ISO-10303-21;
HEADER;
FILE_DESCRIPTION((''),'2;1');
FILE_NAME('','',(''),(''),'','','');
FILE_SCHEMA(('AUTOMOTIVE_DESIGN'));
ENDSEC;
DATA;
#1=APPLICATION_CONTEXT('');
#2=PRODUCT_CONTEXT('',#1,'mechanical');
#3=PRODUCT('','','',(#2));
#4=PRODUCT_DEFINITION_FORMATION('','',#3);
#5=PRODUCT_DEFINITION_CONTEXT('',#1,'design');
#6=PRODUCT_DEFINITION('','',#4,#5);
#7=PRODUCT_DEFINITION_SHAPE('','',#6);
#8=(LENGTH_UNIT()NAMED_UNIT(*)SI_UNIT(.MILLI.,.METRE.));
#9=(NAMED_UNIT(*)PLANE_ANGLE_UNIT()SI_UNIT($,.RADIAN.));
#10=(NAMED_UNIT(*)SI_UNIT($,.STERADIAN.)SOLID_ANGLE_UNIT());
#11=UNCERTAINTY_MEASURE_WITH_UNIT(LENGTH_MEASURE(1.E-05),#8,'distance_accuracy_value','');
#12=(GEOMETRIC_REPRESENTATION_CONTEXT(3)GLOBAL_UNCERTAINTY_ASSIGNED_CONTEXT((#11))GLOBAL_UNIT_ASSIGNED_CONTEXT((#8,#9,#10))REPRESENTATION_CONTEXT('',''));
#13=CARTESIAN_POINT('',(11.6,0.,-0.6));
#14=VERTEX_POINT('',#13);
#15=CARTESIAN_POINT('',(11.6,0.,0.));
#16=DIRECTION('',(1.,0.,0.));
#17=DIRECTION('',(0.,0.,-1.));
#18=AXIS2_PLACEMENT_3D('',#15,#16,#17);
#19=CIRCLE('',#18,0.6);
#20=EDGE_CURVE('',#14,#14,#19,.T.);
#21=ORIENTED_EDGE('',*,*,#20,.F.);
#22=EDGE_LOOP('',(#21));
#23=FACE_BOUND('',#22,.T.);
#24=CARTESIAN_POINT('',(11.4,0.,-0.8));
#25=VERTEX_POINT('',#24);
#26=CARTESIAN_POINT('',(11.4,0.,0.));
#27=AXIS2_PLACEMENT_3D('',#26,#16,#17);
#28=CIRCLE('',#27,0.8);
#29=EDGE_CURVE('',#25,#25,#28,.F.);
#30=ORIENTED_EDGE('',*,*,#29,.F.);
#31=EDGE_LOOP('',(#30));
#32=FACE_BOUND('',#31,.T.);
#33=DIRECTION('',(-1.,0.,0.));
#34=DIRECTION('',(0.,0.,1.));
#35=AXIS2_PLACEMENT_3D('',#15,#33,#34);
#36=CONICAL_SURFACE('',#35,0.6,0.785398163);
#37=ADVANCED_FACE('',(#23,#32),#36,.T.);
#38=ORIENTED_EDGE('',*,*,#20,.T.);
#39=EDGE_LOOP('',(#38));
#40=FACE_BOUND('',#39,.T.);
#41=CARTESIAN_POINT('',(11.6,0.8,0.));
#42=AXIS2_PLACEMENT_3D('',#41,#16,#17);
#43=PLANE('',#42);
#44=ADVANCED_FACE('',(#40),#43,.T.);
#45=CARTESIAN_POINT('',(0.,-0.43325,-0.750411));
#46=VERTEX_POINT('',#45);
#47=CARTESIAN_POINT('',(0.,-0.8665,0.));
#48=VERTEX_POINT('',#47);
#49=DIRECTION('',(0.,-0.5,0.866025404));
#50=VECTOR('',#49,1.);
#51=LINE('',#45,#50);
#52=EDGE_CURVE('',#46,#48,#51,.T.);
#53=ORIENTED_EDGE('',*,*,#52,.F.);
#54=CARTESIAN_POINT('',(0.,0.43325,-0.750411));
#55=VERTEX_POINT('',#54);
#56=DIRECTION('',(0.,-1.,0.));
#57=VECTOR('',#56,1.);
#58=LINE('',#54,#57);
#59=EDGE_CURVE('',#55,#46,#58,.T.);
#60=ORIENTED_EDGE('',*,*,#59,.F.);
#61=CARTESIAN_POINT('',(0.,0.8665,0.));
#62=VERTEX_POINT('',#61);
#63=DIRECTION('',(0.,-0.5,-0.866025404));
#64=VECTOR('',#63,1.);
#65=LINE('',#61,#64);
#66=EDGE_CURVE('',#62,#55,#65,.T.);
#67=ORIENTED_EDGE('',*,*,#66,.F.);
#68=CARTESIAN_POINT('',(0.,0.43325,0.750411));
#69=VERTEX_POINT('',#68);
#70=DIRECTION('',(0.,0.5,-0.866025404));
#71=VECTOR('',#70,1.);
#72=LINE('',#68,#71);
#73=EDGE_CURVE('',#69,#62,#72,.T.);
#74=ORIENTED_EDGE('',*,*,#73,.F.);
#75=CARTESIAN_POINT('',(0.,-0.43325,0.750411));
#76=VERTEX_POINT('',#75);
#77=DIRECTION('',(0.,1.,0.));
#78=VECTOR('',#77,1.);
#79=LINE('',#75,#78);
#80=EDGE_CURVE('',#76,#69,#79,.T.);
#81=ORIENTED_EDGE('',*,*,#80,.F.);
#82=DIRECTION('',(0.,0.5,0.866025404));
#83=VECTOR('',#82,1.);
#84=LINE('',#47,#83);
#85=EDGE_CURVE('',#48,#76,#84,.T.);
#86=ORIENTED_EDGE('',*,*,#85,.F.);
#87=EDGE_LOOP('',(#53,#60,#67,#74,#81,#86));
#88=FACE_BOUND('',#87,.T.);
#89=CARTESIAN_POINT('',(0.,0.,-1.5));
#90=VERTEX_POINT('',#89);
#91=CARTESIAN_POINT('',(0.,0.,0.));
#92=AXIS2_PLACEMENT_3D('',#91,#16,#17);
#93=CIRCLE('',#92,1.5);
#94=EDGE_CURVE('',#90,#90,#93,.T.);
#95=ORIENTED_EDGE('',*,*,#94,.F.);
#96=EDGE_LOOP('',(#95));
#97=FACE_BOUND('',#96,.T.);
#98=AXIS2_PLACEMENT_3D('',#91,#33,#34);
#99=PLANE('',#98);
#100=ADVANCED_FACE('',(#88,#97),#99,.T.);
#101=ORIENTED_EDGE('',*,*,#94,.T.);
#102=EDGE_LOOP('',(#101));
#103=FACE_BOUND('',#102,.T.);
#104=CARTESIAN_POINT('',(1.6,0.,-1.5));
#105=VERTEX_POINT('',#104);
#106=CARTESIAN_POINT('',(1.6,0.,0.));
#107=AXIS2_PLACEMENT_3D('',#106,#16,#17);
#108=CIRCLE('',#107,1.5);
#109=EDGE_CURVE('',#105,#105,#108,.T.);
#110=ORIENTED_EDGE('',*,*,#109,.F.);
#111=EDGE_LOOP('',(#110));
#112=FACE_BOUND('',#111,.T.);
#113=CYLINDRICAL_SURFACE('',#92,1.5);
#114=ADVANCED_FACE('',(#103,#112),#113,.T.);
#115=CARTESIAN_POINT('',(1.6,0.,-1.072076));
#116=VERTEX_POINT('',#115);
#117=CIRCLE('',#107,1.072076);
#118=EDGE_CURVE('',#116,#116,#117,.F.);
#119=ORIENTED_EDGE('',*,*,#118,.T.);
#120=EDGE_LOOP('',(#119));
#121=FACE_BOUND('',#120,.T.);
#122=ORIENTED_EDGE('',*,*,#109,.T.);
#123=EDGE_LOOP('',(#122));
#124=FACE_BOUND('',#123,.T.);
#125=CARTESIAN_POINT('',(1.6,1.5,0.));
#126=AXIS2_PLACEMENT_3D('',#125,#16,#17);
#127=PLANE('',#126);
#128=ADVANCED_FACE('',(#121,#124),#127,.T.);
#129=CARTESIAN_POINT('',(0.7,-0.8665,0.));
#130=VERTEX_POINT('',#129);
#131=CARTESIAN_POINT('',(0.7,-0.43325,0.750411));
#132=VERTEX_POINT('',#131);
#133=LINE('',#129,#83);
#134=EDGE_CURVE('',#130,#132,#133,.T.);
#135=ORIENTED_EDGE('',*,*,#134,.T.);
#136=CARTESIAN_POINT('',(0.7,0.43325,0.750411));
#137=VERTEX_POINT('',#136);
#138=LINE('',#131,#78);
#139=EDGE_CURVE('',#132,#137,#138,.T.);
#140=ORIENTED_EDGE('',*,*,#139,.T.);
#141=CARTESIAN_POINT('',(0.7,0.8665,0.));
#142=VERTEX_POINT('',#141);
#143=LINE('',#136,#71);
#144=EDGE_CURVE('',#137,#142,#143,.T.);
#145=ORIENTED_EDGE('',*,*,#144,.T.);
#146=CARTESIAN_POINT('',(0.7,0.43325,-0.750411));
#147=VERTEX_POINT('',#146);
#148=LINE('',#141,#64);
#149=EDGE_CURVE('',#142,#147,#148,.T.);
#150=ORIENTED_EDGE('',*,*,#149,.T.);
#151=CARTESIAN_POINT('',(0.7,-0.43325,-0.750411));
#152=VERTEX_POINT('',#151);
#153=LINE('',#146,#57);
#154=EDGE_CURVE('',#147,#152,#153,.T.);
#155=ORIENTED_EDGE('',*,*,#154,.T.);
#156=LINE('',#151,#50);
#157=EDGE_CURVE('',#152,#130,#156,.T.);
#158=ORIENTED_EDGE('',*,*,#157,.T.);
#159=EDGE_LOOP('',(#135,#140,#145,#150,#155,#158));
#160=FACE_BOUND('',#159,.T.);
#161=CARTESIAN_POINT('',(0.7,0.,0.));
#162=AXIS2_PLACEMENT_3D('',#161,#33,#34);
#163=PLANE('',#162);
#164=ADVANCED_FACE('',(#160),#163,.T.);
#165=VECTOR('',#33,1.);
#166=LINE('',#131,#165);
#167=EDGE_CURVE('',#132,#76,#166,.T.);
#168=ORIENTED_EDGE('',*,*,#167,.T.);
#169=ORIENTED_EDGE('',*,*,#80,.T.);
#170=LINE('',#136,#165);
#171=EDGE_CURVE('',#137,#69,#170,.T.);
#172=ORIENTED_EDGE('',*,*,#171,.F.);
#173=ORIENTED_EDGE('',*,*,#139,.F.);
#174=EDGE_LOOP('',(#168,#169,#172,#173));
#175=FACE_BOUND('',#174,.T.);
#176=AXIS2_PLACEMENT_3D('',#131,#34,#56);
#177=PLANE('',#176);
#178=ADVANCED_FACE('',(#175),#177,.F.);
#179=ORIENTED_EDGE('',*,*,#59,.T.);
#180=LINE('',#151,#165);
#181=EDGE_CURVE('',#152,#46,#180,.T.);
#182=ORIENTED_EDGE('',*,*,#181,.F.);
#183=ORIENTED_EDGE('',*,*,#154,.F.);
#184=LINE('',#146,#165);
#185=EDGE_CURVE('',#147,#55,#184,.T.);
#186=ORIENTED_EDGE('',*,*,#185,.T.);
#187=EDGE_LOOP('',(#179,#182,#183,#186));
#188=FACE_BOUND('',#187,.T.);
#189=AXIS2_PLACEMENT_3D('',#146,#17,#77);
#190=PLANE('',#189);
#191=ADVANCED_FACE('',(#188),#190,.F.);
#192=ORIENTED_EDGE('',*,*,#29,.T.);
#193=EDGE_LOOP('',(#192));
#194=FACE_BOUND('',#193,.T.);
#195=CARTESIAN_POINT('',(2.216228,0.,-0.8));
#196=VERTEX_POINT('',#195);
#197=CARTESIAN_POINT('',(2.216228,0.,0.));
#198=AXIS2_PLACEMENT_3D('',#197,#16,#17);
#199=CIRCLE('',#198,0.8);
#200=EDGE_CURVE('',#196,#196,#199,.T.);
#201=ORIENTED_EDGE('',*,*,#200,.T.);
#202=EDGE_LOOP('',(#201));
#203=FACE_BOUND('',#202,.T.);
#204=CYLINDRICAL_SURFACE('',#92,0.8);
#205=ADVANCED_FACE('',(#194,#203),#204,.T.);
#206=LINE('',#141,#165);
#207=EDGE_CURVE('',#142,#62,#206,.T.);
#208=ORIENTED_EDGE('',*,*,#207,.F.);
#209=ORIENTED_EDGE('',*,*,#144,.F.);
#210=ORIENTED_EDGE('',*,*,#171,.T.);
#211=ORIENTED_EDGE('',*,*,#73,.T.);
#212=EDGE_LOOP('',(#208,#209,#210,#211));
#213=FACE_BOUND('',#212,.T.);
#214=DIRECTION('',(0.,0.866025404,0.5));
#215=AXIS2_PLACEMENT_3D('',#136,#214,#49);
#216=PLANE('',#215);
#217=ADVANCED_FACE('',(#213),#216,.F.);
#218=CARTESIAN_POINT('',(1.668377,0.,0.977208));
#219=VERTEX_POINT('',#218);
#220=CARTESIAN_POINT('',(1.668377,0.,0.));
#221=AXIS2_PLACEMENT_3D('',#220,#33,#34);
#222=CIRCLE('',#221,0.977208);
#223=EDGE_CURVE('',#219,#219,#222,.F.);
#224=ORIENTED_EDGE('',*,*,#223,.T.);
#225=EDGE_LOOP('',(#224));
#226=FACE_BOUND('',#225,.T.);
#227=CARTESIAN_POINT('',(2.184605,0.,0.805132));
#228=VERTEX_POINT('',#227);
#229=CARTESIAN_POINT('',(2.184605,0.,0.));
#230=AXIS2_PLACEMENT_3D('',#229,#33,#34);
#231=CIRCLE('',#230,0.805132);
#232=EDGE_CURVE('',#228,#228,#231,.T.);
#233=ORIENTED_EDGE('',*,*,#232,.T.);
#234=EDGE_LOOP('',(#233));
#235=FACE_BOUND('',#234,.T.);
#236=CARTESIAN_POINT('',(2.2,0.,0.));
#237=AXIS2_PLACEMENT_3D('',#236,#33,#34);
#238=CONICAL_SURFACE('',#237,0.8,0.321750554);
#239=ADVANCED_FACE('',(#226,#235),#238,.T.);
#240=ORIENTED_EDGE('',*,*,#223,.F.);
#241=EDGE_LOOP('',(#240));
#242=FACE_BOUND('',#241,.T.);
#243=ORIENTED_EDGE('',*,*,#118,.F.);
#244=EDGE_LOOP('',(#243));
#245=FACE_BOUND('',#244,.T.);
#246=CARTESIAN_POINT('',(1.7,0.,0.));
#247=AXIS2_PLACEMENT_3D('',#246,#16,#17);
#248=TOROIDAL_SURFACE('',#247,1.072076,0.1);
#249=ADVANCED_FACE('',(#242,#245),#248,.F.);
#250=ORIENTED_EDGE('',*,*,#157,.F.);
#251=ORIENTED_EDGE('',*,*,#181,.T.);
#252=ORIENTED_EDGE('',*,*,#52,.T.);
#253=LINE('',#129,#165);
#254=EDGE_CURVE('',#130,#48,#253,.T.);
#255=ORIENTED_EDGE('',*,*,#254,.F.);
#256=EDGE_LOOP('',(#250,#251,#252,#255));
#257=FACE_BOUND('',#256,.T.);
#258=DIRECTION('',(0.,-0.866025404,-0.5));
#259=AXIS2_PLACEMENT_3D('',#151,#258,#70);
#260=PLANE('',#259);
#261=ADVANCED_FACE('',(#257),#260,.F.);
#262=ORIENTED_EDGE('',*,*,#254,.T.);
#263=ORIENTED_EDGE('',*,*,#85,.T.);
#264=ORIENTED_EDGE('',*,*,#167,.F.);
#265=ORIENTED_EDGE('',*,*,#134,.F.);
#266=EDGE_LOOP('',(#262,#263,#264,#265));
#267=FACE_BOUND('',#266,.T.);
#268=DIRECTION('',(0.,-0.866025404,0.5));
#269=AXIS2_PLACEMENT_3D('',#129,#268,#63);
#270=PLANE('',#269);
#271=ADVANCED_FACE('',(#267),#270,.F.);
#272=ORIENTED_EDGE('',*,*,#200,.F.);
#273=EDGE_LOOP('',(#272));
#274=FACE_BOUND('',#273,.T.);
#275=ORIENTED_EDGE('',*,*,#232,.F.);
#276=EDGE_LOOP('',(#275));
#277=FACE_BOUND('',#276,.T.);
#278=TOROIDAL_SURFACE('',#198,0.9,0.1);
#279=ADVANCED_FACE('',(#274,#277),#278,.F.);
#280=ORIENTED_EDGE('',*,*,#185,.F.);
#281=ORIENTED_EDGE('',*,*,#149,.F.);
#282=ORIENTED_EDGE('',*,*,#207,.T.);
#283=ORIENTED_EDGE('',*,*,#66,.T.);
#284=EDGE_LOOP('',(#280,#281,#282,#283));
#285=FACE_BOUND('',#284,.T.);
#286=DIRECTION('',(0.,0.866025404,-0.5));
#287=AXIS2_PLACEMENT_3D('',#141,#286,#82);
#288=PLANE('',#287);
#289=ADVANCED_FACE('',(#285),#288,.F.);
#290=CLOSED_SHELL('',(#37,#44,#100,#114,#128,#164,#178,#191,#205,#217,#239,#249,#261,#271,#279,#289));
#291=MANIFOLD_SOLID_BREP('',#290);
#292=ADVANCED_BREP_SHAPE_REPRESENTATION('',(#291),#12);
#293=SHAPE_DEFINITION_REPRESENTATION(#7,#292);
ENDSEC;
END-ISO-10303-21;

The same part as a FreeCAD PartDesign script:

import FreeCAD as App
import Part
import Sketcher
Q = App.Units.Quantity


def edges_at(feature, points):
    """Names of the edges that pass closest to the given points."""
    edges = feature.Shape.Edges
    near = lambda p: min(range(len(edges)), key=lambda i: edges[i].distToShape(Part.Vertex(*p))[0])
    return sorted({f"Edge{near(p) + 1}" for p in points})

doc = App.newDocument("Part")
params = doc.addObject("Spreadsheet::Sheet", "Params")
for row, (alias, value) in enumerate([
    ("sketch1_width", "11.6 mm"),
    ("sketch1_width2", "9.4 mm"),
    ("sketch1_width3", "1.6 mm"),
    ("sketch1_height", "1.5 mm"),
    ("sketch1_height2", "0.8 mm"),
    ("revolution_angle", "360 deg"),
    ("fillet_radius", "0.1 mm"),
    ("chamfer_size", "0.2 mm"),
    ("pocket1_length", "0.7 mm"),
], start=1):
    params.set(f"A{row}", alias)
    params.set(f"B{row}", "=" + value)
    params.setAlias(f"B{row}", alias)

body = doc.addObject("PartDesign::Body", "Body")

# Sketch on XY plane
sketch1 = body.newObject("Sketcher::SketchObject", "Sketch")
sketch1.AttachmentSupport = (doc.getObject("XY_Plane"), [""])
sketch1.MapMode = "FlatFace"
sketch1.addGeometry([
    Part.LineSegment(App.Vector(0, 1.5, 0), App.Vector(0, 0, 0)),  # 0
    Part.LineSegment(App.Vector(0, 0, 0), App.Vector(11.6, 0, 0)),  # 1
    Part.LineSegment(App.Vector(11.6, 0, 0), App.Vector(11.6, 0.8, 0)),  # 2
    Part.LineSegment(App.Vector(11.6, 0.8, 0), App.Vector(2.2, 0.8, 0)),  # 3
    Part.LineSegment(App.Vector(2.2, 0.8, 0), App.Vector(1.6, 1, 0)),  # 4
    Part.LineSegment(App.Vector(1.6, 1, 0), App.Vector(1.6, 1.5, 0)),  # 5
    Part.LineSegment(App.Vector(1.6, 1.5, 0), App.Vector(0, 1.5, 0)),  # 6
], False)
sketch1.addConstraint([
    Sketcher.Constraint("Coincident", 0, 2, 1, 1),
    Sketcher.Constraint("Coincident", 1, 2, 2, 1),
    Sketcher.Constraint("Coincident", 2, 2, 3, 1),
    Sketcher.Constraint("Coincident", 3, 2, 4, 1),
    Sketcher.Constraint("Coincident", 4, 2, 5, 1),
    Sketcher.Constraint("Coincident", 5, 2, 6, 1),
    Sketcher.Constraint("Coincident", 6, 2, 0, 1),
    Sketcher.Constraint("Vertical", 0),
    Sketcher.Constraint("Horizontal", 1),
    Sketcher.Constraint("Vertical", 2),
    Sketcher.Constraint("Horizontal", 3),
    Sketcher.Constraint("Vertical", 5),
    Sketcher.Constraint("Horizontal", 6),
    Sketcher.Constraint("Coincident", 0, 2, -1, 1),
    Sketcher.Constraint("DistanceX", 1, 1, 1, 2, Q("11.6 mm")),
    Sketcher.Constraint("DistanceX", 3, 2, 3, 1, Q("9.4 mm")),
    Sketcher.Constraint("DistanceX", 6, 2, 6, 1, Q("1.6 mm")),
    Sketcher.Constraint("DistanceY", 0, 2, 0, 1, Q("1.5 mm")),
    Sketcher.Constraint("DistanceY", 2, 1, 2, 2, Q("0.8 mm")),
    Sketcher.Constraint("DistanceY", 5, 1, 5, 2, Q("0.5 mm")),
])
sketch1.setExpression("Constraints[14]", "Params.sketch1_width")
sketch1.setExpression("Constraints[15]", "Params.sketch1_width2")
sketch1.setExpression("Constraints[16]", "Params.sketch1_width3")
sketch1.setExpression("Constraints[17]", "Params.sketch1_height")
sketch1.setExpression("Constraints[18]", "Params.sketch1_height2")
revolution = body.newObject("PartDesign::Revolution", "Revolution")
revolution.Profile = sketch1
revolution.ReferenceAxis = (sketch1, ["H_Axis"])
revolution.setExpression("Angle", "Params.revolution_angle")
doc.recompute()

fillet = body.newObject("PartDesign::Fillet", "Fillet")
fillet.Base = (revolution, edges_at(revolution, [(2.2, -0.8, 0), (1.6, -1, 0)]))
fillet.setExpression("Radius", "Params.fillet_radius")
doc.recompute()

chamfer = body.newObject("PartDesign::Chamfer", "Chamfer")
chamfer.Base = (fillet, edges_at(fillet, [(11.6, -0.8, 0)]))
chamfer.setExpression("Size", "Params.chamfer_size")

# Sketch on YZ plane
sketch2 = body.newObject("Sketcher::SketchObject", "Sketch001")
sketch2.AttachmentSupport = (doc.getObject("YZ_Plane"), [""])
sketch2.MapMode = "FlatFace"
sketch2.addGeometry([
    Part.LineSegment(App.Vector(0.9, 0, 0), App.Vector(0.4, -0.8, 0)),  # 0
    Part.LineSegment(App.Vector(0.4, -0.8, 0), App.Vector(-0.4, -0.8, 0)),  # 1
    Part.LineSegment(App.Vector(-0.4, -0.8, 0), App.Vector(-0.9, 0, 0)),  # 2
    Part.LineSegment(App.Vector(-0.9, 0, 0), App.Vector(-0.4, 0.8, 0)),  # 3
    Part.LineSegment(App.Vector(-0.4, 0.8, 0), App.Vector(0.4, 0.8, 0)),  # 4
    Part.LineSegment(App.Vector(0.4, 0.8, 0), App.Vector(0.9, 0, 0)),  # 5
], False)
sketch2.addConstraint([
    Sketcher.Constraint("Coincident", 0, 2, 1, 1),
    Sketcher.Constraint("Coincident", 1, 2, 2, 1),
    Sketcher.Constraint("Coincident", 2, 2, 3, 1),
    Sketcher.Constraint("Coincident", 3, 2, 4, 1),
    Sketcher.Constraint("Coincident", 4, 2, 5, 1),
    Sketcher.Constraint("Coincident", 5, 2, 0, 1),
    Sketcher.Constraint("Horizontal", 1),
    Sketcher.Constraint("Horizontal", 4),
    Sketcher.Constraint("Symmetric", 0, 2, 3, 2, -1, 1),
    Sketcher.Constraint("Symmetric", 2, 2, 5, 2, -1, 1),
    Sketcher.Constraint("PointOnObject", 2, 2, -1),
    Sketcher.Constraint("Parallel", 2, 5),
    Sketcher.Constraint("Vertical", 1, 2, 3, 2),
    Sketcher.Constraint("Angle", 0, Q("-120 deg")),
    Sketcher.Constraint("DistanceX", 1, 2, 1, 1, Q("0.8665 mm")),
    Sketcher.Constraint("DistanceX", 2, 2, 5, 2, Q("1.733 mm")),
])
pocket1 = body.newObject("PartDesign::Pocket", "Pocket")
pocket1.Profile = sketch2
pocket1.setExpression("Length", "Params.pocket1_length")
pocket1.Reversed = True

doc.recompute()
